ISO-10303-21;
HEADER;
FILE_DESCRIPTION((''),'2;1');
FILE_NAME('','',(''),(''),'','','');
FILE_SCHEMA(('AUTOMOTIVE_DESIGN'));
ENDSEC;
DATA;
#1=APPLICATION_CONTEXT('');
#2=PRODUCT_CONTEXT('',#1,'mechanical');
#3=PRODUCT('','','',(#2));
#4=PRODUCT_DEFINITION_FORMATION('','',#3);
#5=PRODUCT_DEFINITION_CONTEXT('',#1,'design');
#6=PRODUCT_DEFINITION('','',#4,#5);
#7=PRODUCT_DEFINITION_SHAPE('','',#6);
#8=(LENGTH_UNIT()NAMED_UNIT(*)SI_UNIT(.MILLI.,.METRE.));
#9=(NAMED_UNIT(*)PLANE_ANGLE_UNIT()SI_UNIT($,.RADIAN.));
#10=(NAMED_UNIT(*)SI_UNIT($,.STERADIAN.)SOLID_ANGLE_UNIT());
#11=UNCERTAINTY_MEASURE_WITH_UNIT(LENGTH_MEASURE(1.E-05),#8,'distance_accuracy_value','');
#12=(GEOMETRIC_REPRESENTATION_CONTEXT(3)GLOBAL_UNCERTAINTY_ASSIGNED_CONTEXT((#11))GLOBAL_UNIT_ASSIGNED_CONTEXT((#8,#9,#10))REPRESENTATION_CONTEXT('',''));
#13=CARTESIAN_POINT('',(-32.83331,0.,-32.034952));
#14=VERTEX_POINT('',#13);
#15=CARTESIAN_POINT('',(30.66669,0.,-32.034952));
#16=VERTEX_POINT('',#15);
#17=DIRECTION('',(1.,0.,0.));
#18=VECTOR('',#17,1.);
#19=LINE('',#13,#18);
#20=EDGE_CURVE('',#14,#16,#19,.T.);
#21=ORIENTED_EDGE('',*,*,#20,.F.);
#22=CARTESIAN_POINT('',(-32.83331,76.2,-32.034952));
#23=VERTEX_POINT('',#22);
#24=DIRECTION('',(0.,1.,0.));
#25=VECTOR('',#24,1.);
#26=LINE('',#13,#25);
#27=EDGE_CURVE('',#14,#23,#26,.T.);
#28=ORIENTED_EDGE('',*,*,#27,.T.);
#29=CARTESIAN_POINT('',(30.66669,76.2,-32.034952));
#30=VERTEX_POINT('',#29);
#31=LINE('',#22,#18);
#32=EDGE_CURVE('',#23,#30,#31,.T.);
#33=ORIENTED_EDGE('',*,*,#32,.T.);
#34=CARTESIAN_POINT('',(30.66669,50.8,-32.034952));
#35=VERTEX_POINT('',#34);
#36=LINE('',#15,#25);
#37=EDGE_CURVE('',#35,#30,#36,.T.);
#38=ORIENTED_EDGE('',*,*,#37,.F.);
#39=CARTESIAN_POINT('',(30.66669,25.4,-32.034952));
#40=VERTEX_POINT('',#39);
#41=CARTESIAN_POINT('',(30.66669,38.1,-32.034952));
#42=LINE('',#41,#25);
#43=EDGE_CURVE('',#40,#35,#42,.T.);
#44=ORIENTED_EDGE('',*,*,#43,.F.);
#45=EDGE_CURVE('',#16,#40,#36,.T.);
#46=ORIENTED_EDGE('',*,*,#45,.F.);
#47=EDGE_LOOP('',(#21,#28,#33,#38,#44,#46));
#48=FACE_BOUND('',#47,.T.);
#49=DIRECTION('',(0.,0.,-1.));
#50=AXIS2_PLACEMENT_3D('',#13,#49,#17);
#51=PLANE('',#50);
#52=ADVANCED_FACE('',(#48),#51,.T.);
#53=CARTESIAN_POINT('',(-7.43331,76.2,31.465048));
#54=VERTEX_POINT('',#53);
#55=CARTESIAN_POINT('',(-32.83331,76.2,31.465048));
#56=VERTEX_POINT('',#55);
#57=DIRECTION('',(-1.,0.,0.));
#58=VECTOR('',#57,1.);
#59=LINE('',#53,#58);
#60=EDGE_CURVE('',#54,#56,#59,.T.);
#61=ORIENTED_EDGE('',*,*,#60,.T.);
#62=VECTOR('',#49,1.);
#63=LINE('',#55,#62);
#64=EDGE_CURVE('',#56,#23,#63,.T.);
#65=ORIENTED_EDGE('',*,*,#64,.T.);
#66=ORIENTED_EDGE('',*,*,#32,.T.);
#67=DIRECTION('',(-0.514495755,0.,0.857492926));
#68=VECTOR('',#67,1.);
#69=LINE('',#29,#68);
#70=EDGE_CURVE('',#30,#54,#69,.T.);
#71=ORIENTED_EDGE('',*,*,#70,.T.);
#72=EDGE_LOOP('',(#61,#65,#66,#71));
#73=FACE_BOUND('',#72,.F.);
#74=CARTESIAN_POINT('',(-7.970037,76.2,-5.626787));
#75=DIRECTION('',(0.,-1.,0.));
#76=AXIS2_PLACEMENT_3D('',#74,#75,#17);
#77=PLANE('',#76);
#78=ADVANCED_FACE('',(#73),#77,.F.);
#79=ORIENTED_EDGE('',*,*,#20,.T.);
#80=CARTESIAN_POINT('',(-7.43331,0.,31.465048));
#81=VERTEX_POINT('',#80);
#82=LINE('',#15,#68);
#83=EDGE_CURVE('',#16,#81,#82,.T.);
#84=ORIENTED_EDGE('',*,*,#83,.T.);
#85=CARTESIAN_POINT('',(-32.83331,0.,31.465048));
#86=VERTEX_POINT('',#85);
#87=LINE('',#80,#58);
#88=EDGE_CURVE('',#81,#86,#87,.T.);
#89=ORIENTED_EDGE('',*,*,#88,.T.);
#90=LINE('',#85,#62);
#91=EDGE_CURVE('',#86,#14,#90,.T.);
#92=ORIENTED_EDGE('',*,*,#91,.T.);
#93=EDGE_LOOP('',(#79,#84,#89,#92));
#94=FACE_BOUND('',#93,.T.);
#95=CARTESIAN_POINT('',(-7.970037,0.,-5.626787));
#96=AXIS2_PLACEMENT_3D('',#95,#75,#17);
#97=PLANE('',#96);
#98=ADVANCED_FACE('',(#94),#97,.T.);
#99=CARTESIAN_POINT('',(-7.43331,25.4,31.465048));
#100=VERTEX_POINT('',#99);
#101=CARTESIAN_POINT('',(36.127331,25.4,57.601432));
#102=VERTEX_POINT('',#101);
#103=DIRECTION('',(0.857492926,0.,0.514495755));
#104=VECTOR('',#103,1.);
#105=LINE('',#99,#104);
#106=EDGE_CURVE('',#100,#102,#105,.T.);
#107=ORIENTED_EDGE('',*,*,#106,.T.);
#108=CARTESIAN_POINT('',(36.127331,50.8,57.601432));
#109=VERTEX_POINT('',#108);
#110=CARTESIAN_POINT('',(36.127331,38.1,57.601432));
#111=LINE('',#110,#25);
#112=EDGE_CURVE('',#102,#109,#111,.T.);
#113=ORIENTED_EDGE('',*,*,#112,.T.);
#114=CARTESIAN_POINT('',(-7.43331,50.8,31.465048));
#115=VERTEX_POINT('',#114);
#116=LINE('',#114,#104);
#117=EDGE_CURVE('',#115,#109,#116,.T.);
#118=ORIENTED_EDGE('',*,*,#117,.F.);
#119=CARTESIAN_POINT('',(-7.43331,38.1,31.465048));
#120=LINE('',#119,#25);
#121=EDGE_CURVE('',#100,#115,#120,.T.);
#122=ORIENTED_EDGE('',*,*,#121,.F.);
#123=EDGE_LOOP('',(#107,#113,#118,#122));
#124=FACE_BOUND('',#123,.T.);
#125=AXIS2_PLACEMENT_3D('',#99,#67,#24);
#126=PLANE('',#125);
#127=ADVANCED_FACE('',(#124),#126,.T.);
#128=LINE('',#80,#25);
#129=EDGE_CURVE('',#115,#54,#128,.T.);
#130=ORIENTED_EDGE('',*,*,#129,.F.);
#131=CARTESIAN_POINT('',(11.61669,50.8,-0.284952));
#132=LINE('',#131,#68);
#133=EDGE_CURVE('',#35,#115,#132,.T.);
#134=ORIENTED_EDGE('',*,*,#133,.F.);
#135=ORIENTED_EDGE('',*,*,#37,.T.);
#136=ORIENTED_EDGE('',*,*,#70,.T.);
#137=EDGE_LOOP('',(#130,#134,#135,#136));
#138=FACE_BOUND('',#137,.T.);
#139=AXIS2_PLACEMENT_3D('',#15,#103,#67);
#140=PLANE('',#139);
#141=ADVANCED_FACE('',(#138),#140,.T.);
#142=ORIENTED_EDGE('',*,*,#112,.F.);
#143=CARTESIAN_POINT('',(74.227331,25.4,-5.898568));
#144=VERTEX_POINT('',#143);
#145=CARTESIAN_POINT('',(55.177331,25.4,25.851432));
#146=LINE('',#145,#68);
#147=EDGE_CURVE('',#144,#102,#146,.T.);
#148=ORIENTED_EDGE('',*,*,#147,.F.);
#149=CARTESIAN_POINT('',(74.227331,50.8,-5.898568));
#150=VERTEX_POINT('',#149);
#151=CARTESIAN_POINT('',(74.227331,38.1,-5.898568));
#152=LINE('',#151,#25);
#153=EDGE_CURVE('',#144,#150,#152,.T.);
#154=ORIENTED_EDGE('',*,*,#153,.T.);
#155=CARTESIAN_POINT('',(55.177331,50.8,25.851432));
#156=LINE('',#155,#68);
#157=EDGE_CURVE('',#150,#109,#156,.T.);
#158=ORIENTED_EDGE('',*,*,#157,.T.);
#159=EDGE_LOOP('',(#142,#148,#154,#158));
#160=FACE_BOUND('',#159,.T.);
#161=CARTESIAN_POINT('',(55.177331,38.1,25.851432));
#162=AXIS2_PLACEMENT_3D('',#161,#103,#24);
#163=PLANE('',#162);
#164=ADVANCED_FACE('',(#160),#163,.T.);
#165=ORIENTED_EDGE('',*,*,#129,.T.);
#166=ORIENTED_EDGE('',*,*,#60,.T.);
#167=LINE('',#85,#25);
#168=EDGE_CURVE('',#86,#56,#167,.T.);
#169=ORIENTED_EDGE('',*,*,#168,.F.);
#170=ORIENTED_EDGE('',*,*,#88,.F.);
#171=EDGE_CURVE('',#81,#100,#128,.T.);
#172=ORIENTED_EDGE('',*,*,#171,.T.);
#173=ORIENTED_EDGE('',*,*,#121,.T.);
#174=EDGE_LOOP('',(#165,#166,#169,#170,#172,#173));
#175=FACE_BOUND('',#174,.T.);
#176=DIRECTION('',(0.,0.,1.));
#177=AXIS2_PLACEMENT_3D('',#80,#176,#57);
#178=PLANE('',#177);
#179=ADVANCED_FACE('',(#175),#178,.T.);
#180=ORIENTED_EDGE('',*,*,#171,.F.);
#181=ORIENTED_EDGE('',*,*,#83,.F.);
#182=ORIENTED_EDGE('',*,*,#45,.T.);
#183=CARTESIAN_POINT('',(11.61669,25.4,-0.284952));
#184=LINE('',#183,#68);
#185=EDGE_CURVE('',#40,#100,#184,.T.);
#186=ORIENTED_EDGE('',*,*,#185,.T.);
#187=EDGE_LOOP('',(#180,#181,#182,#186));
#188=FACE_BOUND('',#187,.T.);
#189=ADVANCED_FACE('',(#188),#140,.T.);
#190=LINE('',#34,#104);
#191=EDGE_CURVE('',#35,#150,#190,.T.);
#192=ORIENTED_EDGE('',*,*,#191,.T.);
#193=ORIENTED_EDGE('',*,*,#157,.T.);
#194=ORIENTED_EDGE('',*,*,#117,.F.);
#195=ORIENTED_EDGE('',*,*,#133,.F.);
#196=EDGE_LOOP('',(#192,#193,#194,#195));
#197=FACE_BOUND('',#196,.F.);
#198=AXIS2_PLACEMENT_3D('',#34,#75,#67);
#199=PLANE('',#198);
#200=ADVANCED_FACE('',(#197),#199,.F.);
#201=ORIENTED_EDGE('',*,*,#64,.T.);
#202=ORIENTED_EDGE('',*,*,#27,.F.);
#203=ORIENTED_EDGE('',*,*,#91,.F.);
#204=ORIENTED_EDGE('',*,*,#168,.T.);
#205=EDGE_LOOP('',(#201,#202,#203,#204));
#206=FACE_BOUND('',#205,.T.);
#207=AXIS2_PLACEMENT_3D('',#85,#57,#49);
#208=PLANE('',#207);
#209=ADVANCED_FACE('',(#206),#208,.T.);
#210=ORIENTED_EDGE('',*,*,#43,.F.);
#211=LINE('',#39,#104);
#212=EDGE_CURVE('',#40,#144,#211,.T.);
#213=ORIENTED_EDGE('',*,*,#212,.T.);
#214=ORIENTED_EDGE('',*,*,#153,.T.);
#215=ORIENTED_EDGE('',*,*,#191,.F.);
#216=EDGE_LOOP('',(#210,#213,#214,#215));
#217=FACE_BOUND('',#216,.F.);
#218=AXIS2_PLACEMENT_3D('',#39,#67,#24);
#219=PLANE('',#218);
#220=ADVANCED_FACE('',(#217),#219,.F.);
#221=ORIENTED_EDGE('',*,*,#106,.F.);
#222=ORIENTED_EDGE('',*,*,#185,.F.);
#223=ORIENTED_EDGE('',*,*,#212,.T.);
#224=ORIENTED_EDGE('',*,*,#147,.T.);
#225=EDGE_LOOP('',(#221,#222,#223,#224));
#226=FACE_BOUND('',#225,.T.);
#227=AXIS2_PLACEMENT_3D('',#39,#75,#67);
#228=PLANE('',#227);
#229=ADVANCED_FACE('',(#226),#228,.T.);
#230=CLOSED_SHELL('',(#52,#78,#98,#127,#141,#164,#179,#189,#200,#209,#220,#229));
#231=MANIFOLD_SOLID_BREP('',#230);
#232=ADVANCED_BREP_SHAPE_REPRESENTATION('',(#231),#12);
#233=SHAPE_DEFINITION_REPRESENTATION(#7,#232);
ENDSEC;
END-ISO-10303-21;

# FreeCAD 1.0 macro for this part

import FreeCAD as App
import Part
import Sketcher

V = App.Vector
Q = App.Units.Quantity

doc = App.newDocument("Part")
params = doc.addObject("Spreadsheet::Sheet", "Params")
for row, (alias, value) in enumerate([
    ("sketch1_width", "1 in"),
    ("sketch1_width2", "2.5 in"),
    ("pad1_length", "3 in"),
    ("sketch2_width", "1 in"),
    ("pad2_length", "2 in"),
], start=1):
    params.set(f"A{row}", alias)
    params.set(f"B{row}", "=" + value)
    params.setAlias(f"B{row}", alias)

body = doc.addObject("PartDesign::Body", "Body")

sketch1 = body.newObject("Sketcher::SketchObject", "Sketch")
sketch1.AttachmentSupport = (doc.getObject("XZ_Plane"), [""])
sketch1.MapMode = "FlatFace"
sketch1.addGeometry(Part.LineSegment(V(-32.83331, 31.465048, 0), V(-32.83331, -32.034952, 0)), False)
sketch1.addGeometry(Part.LineSegment(V(-32.83331, -32.034952, 0), V(30.66669, -32.034952, 0)), False)
sketch1.addGeometry(Part.LineSegment(V(30.66669, -32.034952, 0), V(-7.43331, 31.465048, 0)), False)
sketch1.addGeometry(Part.LineSegment(V(-7.43331, 31.465048, 0), V(-32.83331, 31.465048, 0)), False)
sketch1.addConstraint(Sketcher.Constraint("Coincident", 0, 2, 1, 1))
sketch1.addConstraint(Sketcher.Constraint("Coincident", 1, 2, 2, 1))
sketch1.addConstraint(Sketcher.Constraint("Coincident", 2, 2, 3, 1))
sketch1.addConstraint(Sketcher.Constraint("Coincident", 3, 2, 0, 1))
sketch1.addConstraint(Sketcher.Constraint("Vertical", 0))
sketch1.addConstraint(Sketcher.Constraint("Horizontal", 1))
sketch1.addConstraint(Sketcher.Constraint("Horizontal", 3))
sketch1.addConstraint(Sketcher.Constraint("Equal", 1, 0))
sketch1.addConstraint(Sketcher.Constraint("DistanceX", 3, 2, 3, 1, Q("1 in")))
sketch1.addConstraint(Sketcher.Constraint("DistanceX", 1, 1, 1, 2, Q("2.5 in")))
sketch1.addConstraint(Sketcher.Constraint("DistanceX", 0, 2, -1, 1, Q("32.83331 mm")))
sketch1.addConstraint(Sketcher.Constraint("DistanceY", 0, 2, -1, 1, Q("32.034952 mm")))
sketch1.setExpression("Constraints[8]", "Params.sketch1_width")
sketch1.setExpression("Constraints[9]", "Params.sketch1_width2")
pad1 = body.newObject("PartDesign::Pad", "Pad")
pad1.Profile = sketch1
pad1.setExpression("Length", "Params.pad1_length")
pad1.Reversed = True

sketch2 = body.newObject("Sketcher::SketchObject", "Sketch001")
sketch2.Placement = App.Placement(V(8.41597, 0, 5.049582), App.Rotation(V(0, 1, 0), V(-0.514495755, 0, 0.857492926), V(0.857492926, 0, 0.514495755), "ZXY"))
sketch2.addGeometry(Part.LineSegment(V(25.4, 30.805462, 0), V(25.4, -43.247627, 0)), False)
sketch2.addGeometry(Part.LineSegment(V(25.4, -43.247627, 0), V(50.8, -43.247627, 0)), False)
sketch2.addGeometry(Part.LineSegment(V(50.8, -43.247627, 0), V(50.8, 30.805462, 0)), False)
sketch2.addGeometry(Part.LineSegment(V(50.8, 30.805462, 0), V(25.4, 30.805462, 0)), False)
sketch2.addConstraint(Sketcher.Constraint("Coincident", 0, 2, 1, 1))
sketch2.addConstraint(Sketcher.Constraint("Coincident", 1, 2, 2, 1))
sketch2.addConstraint(Sketcher.Constraint("Coincident", 2, 2, 3, 1))
sketch2.addConstraint(Sketcher.Constraint("Coincident", 3, 2, 0, 1))
sketch2.addConstraint(Sketcher.Constraint("Vertical", 0))
sketch2.addConstraint(Sketcher.Constraint("Horizontal", 1))
sketch2.addConstraint(Sketcher.Constraint("Vertical", 2))
sketch2.addConstraint(Sketcher.Constraint("Horizontal", 3))
sketch2.addConstraint(Sketcher.Constraint("DistanceX", 1, 1, 1, 2, Q("1 in")))
sketch2.addConstraint(Sketcher.Constraint("DistanceX", -1, 1, 0, 2, Q("1 in")))
sketch2.addConstraint(Sketcher.Constraint("DistanceY", 0, 2, 0, 1, Q("74.053089 mm")))
sketch2.addConstraint(Sketcher.Constraint("DistanceY", 0, 2, -1, 1, Q("43.247627 mm")))
sketch2.setExpression("Constraints[8]", "Params.sketch2_width")
pad2 = body.newObject("PartDesign::Pad", "Pad001")
pad2.Profile = sketch2
pad2.setExpression("Length", "Params.pad2_length")

doc.recompute()
